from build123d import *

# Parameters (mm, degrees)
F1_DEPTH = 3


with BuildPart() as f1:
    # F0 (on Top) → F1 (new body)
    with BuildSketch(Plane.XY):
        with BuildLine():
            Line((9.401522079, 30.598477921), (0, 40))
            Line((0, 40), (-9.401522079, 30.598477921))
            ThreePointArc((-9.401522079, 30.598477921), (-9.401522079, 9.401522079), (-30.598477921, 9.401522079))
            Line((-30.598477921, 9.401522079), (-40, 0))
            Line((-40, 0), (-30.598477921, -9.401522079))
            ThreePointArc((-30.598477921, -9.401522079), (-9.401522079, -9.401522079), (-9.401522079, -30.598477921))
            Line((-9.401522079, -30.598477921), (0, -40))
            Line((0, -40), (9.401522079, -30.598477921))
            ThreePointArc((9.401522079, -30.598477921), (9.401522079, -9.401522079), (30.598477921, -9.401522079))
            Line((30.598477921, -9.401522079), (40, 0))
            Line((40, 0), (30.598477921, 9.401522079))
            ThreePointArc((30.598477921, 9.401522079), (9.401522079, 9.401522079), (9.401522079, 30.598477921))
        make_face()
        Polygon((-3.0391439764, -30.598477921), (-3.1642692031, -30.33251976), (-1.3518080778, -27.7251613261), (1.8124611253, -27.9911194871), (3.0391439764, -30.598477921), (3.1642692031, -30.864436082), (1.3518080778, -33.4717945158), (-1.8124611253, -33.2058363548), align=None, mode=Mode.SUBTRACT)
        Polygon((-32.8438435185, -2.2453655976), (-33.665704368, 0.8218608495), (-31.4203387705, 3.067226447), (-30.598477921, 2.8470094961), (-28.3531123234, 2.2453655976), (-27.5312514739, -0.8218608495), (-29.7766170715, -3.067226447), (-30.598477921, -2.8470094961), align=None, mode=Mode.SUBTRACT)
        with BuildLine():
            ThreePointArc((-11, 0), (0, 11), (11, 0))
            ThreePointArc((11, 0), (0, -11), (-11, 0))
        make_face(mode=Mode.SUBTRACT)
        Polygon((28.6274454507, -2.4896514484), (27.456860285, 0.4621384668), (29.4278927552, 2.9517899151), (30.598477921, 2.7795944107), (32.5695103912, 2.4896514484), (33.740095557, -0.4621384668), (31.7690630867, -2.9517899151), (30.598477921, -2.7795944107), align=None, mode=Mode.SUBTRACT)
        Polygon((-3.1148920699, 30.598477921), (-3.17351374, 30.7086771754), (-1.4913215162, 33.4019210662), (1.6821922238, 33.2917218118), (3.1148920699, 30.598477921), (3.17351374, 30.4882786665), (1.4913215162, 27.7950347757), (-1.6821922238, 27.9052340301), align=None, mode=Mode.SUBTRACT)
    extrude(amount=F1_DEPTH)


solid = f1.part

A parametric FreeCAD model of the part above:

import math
import FreeCAD as App
import Part
import Sketcher

doc = App.newDocument("Part")
params = doc.addObject("Spreadsheet::Sheet", "Params")
for row, (alias, value) in enumerate([
    ("sketch1_diameter", "22 mm"),
    ("pad1_length", "3 mm"),
], start=1):
    params.set(f"A{row}", alias)
    params.set(f"B{row}", "=" + value)
    params.setAlias(f"B{row}", alias)

body = doc.addObject("PartDesign::Body", "Body")

sketch1 = body.newObject("Sketcher::SketchObject", "Sketch")
sketch1.AttachmentSupport = (doc.getObject("XY_Plane"), [""])
sketch1.MapMode = "FlatFace"
sketch1.addGeometry([
    Part.LineSegment(App.Vector(9.401522, 30.598478, 0), App.Vector(0, 40, 0)),
    Part.LineSegment(App.Vector(0, 40, 0), App.Vector(-9.401522, 30.598478, 0)),
    Part.ArcOfCircle(Part.Circle(App.Vector(-20, 20, 0), App.Vector(0, 0, 1), 14.988511), math.radians(-135), math.radians(45)),
    Part.LineSegment(App.Vector(-30.598478, 9.401522, 0), App.Vector(-40, 0, 0)),
    Part.LineSegment(App.Vector(-40, 0, 0), App.Vector(-30.598478, -9.401522, 0)),
    Part.ArcOfCircle(Part.Circle(App.Vector(-20, -20, 0), App.Vector(0, 0, 1), 14.988511), math.radians(-45), math.radians(135)),
    Part.LineSegment(App.Vector(-9.401522, -30.598478, 0), App.Vector(0, -40, 0)),
    Part.LineSegment(App.Vector(0, -40, 0), App.Vector(9.401522, -30.598478, 0)),
    Part.ArcOfCircle(Part.Circle(App.Vector(20, -20, 0), App.Vector(0, 0, 1), 14.988511), math.radians(45), math.radians(225)),
    Part.LineSegment(App.Vector(30.598478, -9.401522, 0), App.Vector(40, 0, 0)),
    Part.LineSegment(App.Vector(40, 0, 0), App.Vector(30.598478, 9.401522, 0)),
    Part.ArcOfCircle(Part.Circle(App.Vector(20, 20, 0), App.Vector(0, 0, 1), 14.988511), math.radians(135), math.radians(315)),
    Part.LineSegment(App.Vector(-1.812461, -33.205836, 0), App.Vector(-3.039144, -30.598478, 0)),
    Part.LineSegment(App.Vector(-3.039144, -30.598478, 0), App.Vector(-3.164269, -30.33252, 0)),
    Part.LineSegment(App.Vector(-3.164269, -30.33252, 0), App.Vector(-1.351808, -27.725161, 0)),
    Part.LineSegment(App.Vector(-1.351808, -27.725161, 0), App.Vector(1.812461, -27.991119, 0)),
    Part.LineSegment(App.Vector(1.812461, -27.991119, 0), App.Vector(3.039144, -30.598478, 0)),
    Part.LineSegment(App.Vector(3.039144, -30.598478, 0), App.Vector(3.164269, -30.864436, 0)),
    Part.LineSegment(App.Vector(3.164269, -30.864436, 0), App.Vector(1.351808, -33.471795, 0)),
    Part.LineSegment(App.Vector(1.351808, -33.471795, 0), App.Vector(-1.812461, -33.205836, 0)),
    Part.LineSegment(App.Vector(-30.598478, -2.847009, 0), App.Vector(-32.843844, -2.245366, 0)),
    Part.LineSegment(App.Vector(-32.843844, -2.245366, 0), App.Vector(-33.665704, 0.821861, 0)),
    Part.LineSegment(App.Vector(-33.665704, 0.821861, 0), App.Vector(-31.420339, 3.067226, 0)),
    Part.LineSegment(App.Vector(-31.420339, 3.067226, 0), App.Vector(-30.598478, 2.847009, 0)),
    Part.LineSegment(App.Vector(-30.598478, 2.847009, 0), App.Vector(-28.353112, 2.245366, 0)),
    Part.LineSegment(App.Vector(-28.353112, 2.245366, 0), App.Vector(-27.531251, -0.821861, 0)),
    Part.LineSegment(App.Vector(-27.531251, -0.821861, 0), App.Vector(-29.776617, -3.067226, 0)),
    Part.LineSegment(App.Vector(-29.776617, -3.067226, 0), App.Vector(-30.598478, -2.847009, 0)),
    Part.Circle(App.Vector(0, 0, 0), App.Vector(0, 0, 1), 11),
    Part.LineSegment(App.Vector(-1.682192, 27.905234, 0), App.Vector(-3.114892, 30.598478, 0)),
    Part.LineSegment(App.Vector(-3.114892, 30.598478, 0), App.Vector(-3.173514, 30.708677, 0)),
    Part.LineSegment(App.Vector(-3.173514, 30.708677, 0), App.Vector(-1.491322, 33.401921, 0)),
    Part.LineSegment(App.Vector(-1.491322, 33.401921, 0), App.Vector(1.682192, 33.291722, 0)),
    Part.LineSegment(App.Vector(1.682192, 33.291722, 0), App.Vector(3.114892, 30.598478, 0)),
    Part.LineSegment(App.Vector(3.114892, 30.598478, 0), App.Vector(3.173514, 30.488279, 0)),
    Part.LineSegment(App.Vector(3.173514, 30.488279, 0), App.Vector(1.491322, 27.795035, 0)),
    Part.LineSegment(App.Vector(1.491322, 27.795035, 0), App.Vector(-1.682192, 27.905234, 0)),
    Part.LineSegment(App.Vector(30.598478, -2.779594, 0), App.Vector(28.627445, -2.489651, 0)),
    Part.LineSegment(App.Vector(28.627445, -2.489651, 0), App.Vector(27.45686, 0.462138, 0)),
    Part.LineSegment(App.Vector(27.45686, 0.462138, 0), App.Vector(29.427893, 2.95179, 0)),
    Part.LineSegment(App.Vector(29.427893, 2.95179, 0), App.Vector(30.598478, 2.779594, 0)),
    Part.LineSegment(App.Vector(30.598478, 2.779594, 0), App.Vector(32.56951, 2.489651, 0)),
    Part.LineSegment(App.Vector(32.56951, 2.489651, 0), App.Vector(33.740096, -0.462138, 0)),
    Part.LineSegment(App.Vector(33.740096, -0.462138, 0), App.Vector(31.769063, -2.95179, 0)),
    Part.LineSegment(App.Vector(31.769063, -2.95179, 0), App.Vector(30.598478, -2.779594, 0)),
], False)
sketch1.addConstraint([
    Sketcher.Constraint("Coincident", 0, 2, 1, 1),
    Sketcher.Constraint("Coincident", 1, 2, 2, 2),
    Sketcher.Constraint("Coincident", 2, 1, 3, 1),
    Sketcher.Constraint("Coincident", 3, 2, 4, 1),
    Sketcher.Constraint("Coincident", 4, 2, 5, 2),
    Sketcher.Constraint("Coincident", 5, 1, 6, 1),
    Sketcher.Constraint("Coincident", 6, 2, 7, 1),
    Sketcher.Constraint("Coincident", 7, 2, 8, 2),
    Sketcher.Constraint("Coincident", 8, 1, 9, 1),
    Sketcher.Constraint("Coincident", 9, 2, 10, 1),
    Sketcher.Constraint("Coincident", 10, 2, 11, 2),
    Sketcher.Constraint("Coincident", 11, 1, 0, 1),
    Sketcher.Constraint("Coincident", 12, 2, 13, 1),
    Sketcher.Constraint("Coincident", 13, 2, 14, 1),
    Sketcher.Constraint("Coincident", 14, 2, 15, 1),
    Sketcher.Constraint("Coincident", 15, 2, 16, 1),
    Sketcher.Constraint("Coincident", 16, 2, 17, 1),
    Sketcher.Constraint("Coincident", 17, 2, 18, 1),
    Sketcher.Constraint("Coincident", 18, 2, 19, 1),
    Sketcher.Constraint("Coincident", 19, 2, 12, 1),
    Sketcher.Constraint("Coincident", 20, 2, 21, 1),
    Sketcher.Constraint("Coincident", 21, 2, 22, 1),
    Sketcher.Constraint("Coincident", 22, 2, 23, 1),
    Sketcher.Constraint("Coincident", 23, 2, 24, 1),
    Sketcher.Constraint("Coincident", 24, 2, 25, 1),
    Sketcher.Constraint("Coincident", 25, 2, 26, 1),
    Sketcher.Constraint("Coincident", 26, 2, 27, 1),
    Sketcher.Constraint("Coincident", 27, 2, 20, 1),
    Sketcher.Constraint("Coincident", 29, 2, 30, 1),
    Sketcher.Constraint("Coincident", 30, 2, 31, 1),
    Sketcher.Constraint("Coincident", 31, 2, 32, 1),
    Sketcher.Constraint("Coincident", 32, 2, 33, 1),
    Sketcher.Constraint("Coincident", 33, 2, 34, 1),
    Sketcher.Constraint("Coincident", 34, 2, 35, 1),
    Sketcher.Constraint("Coincident", 35, 2, 36, 1),
    Sketcher.Constraint("Coincident", 36, 2, 29, 1),
    Sketcher.Constraint("Coincident", 37, 2, 38, 1),
    Sketcher.Constraint("Coincident", 38, 2, 39, 1),
    Sketcher.Constraint("Coincident", 39, 2, 40, 1),
    Sketcher.Constraint("Coincident", 40, 2, 41, 1),
    Sketcher.Constraint("Coincident", 41, 2, 42, 1),
    Sketcher.Constraint("Coincident", 42, 2, 43, 1),
    Sketcher.Constraint("Coincident", 43, 2, 44, 1),
    Sketcher.Constraint("Coincident", 44, 2, 37, 1),
    Sketcher.Constraint("Coincident", 28, 3, -1, 1),
    Sketcher.Constraint("PointOnObject", 0, 2, -2),
    Sketcher.Constraint("PointOnObject", 3, 2, -1),
    Sketcher.Constraint("PointOnObject", 6, 2, -2),
    Sketcher.Constraint("PointOnObject", 9, 2, -1),
    Sketcher.Constraint("Diameter", 28, 22.0),
    Sketcher.Constraint("DistanceX", 2, 3, -1, 1, 20.0),
    Sketcher.Constraint("DistanceY", -1, 1, 2, 3, 20.0),
    Sketcher.Constraint("DistanceX", 5, 3, -1, 1, 20.0),
    Sketcher.Constraint("DistanceY", 5, 3, -1, 1, 20.0),
    Sketcher.Constraint("DistanceX", -1, 1, 8, 3, 20.0),
    Sketcher.Constraint("DistanceY", 8, 3, -1, 1, 20.0),
    Sketcher.Constraint("DistanceX", -1, 1, 11, 3, 20.0),
    Sketcher.Constraint("DistanceY", -1, 1, 11, 3, 20.0),
    Sketcher.Constraint("DistanceY", -1, 1, 0, 2, 40.0),
    Sketcher.Constraint("DistanceX", 3, 2, -1, 1, 40.0),
    Sketcher.Constraint("DistanceY", 6, 2, -1, 1, 40.0),
    Sketcher.Constraint("DistanceX", -1, 1, 9, 2, 40.0),
    Sketcher.Constraint("Radius", 2, 14.988511),
    Sketcher.Constraint("Radius", 5, 14.988511),
    Sketcher.Constraint("Radius", 8, 14.988511),
    Sketcher.Constraint("Radius", 11, 14.988511),
    Sketcher.Constraint("DistanceY", 13, 2, 15, 2, 2.3414),
    Sketcher.Constraint("DistanceY", 19, 2, 17, 2, 2.3414),
    Sketcher.Constraint("DistanceY", 29, 2, 30, 2, 0.110199),
    Sketcher.Constraint("DistanceY", 1, 2, 30, 2, 0.110199),
    Sketcher.Constraint("DistanceY", 11, 1, 30, 2, 0.110199),
    Sketcher.Constraint("DistanceX", 1, 2, 31, 2, 7.910201),
    Sketcher.Constraint("DistanceY", 32, 2, 31, 2, 0.110199),
    Sketcher.Constraint("DistanceX", 32, 2, 33, 2, 1.4327),
    Sketcher.Constraint("DistanceY", 33, 2, 30, 2, 0.110199),
    Sketcher.Constraint("DistanceY", 34, 2, 33, 2, 0.110199),
    Sketcher.Constraint("DistanceX", 29, 2, 36, 2, 1.4327),
    Sketcher.Constraint("DistanceY", 35, 2, 36, 2, 0.110199),
    Sketcher.Constraint("Distance", 13, 0.293922),
    Sketcher.Constraint("Distance", 17, 0.293922),
    Sketcher.Constraint("Distance", 30, 0.124821),
    Sketcher.Constraint("Distance", 34, 0.124821),
    Sketcher.Constraint("DistanceX", 13, 2, -1, 1, 3.164269),
    Sketcher.Constraint("DistanceY", 13, 2, -1, 1, 30.33252),
    Sketcher.Constraint("DistanceX", 14, 2, -1, 1, 1.351808),
    Sketcher.Constraint("DistanceY", 14, 2, -1, 1, 27.725161),
    Sketcher.Constraint("DistanceX", -1, 1, 15, 2, 1.812461),
    Sketcher.Constraint("DistanceX", -1, 1, 17, 2, 3.164269),
    Sketcher.Constraint("DistanceX", -1, 1, 18, 2, 1.351808),
    Sketcher.Constraint("DistanceX", 19, 2, -1, 1, 1.812461),
    Sketcher.Constraint("DistanceY", -1, 1, 21, 2, 0.821861),
    Sketcher.Constraint("DistanceX", 22, 2, -1, 1, 31.420339),
    Sketcher.Constraint("DistanceY", -1, 1, 23, 2, 2.847009),
    Sketcher.Constraint("DistanceX", 25, 2, -1, 1, 27.531251),
    Sketcher.Constraint("DistanceY", 25, 2, -1, 1, 0.821861),
    Sketcher.Constraint("DistanceY", 27, 2, -1, 1, 2.847009),
    Sketcher.Constraint("DistanceX", 31, 2, -1, 1, 1.491322),
    Sketcher.Constraint("DistanceY", -1, 1, 31, 2, 33.401921),
    Sketcher.Constraint("DistanceX", -1, 1, 35, 2, 1.491322),
    Sketcher.Constraint("DistanceY", 37, 2, -1, 1, 2.489651),
    Sketcher.Constraint("DistanceX", -1, 1, 38, 2, 27.45686),
    Sketcher.Constraint("DistanceY", -1, 1, 38, 2, 0.462138),
    Sketcher.Constraint("DistanceY", -1, 1, 39, 2, 2.95179),
    Sketcher.Constraint("DistanceX", -1, 1, 41, 2, 32.56951),
    Sketcher.Constraint("DistanceY", -1, 1, 41, 2, 2.489651),
    Sketcher.Constraint("DistanceY", 42, 2, -1, 1, 0.462138),
    Sketcher.Constraint("DistanceY", 43, 2, -1, 1, 2.95179),
    Sketcher.Constraint("DistanceX", 5, 1, 12, 2, 6.362378),
    Sketcher.Constraint("DistanceY", 12, 2, 13, 2, 0.265958),
    Sketcher.Constraint("DistanceX", 13, 2, 7, 2, 12.565791),
    Sketcher.Constraint("DistanceY", 16, 2, 15, 2, 2.607358),
    Sketcher.Constraint("DistanceX", 16, 2, 7, 2, 6.362378),
    Sketcher.Constraint("DistanceY", 18, 2, 17, 2, 2.607358),
    Sketcher.Constraint("DistanceX", 21, 2, 20, 2, 0.821861),
    Sketcher.Constraint("DistanceY", 21, 2, 2, 1, 8.579661),
    Sketcher.Constraint("DistanceX", 22, 2, 4, 2, 0.821861),
    Sketcher.Constraint("DistanceY", 4, 2, 22, 2, 12.468749),
    Sketcher.Constraint("DistanceX", 22, 2, 23, 2, 0.821861),
    Sketcher.Constraint("DistanceY", 24, 2, 22, 2, 0.821861),
    Sketcher.Constraint("DistanceX", 20, 2, 24, 2, 4.490731),
    Sketcher.Constraint("DistanceY", 20, 2, 24, 2, 4.490731),
    Sketcher.Constraint("DistanceX", 24, 2, 25, 2, 0.821861),
    Sketcher.Constraint("DistanceY", 26, 2, 20, 2, 0.821861),
    Sketcher.Constraint("DistanceX", 23, 2, 26, 2, 0.821861),
    Sketcher.Constraint("DistanceX", 27, 2, 26, 2, 0.821861),
    Sketcher.Constraint("DistanceX", 1, 2, 29, 2, 6.28663),
    Sketcher.Constraint("DistanceX", 32, 2, 11, 1, 7.71933),
    Sketcher.Constraint("DistanceY", 8, 1, 37, 2, 6.911871),
    Sketcher.Constraint("DistanceY", 41, 2, 10, 2, 6.911871),
    Sketcher.Constraint("DistanceX", 37, 2, 42, 2, 5.11265),
    Sketcher.Constraint("DistanceY", 44, 2, 40, 2, 5.559189),
    Sketcher.Constraint("Distance", 29, 3.050605),
    Sketcher.Constraint("Distance", 37, 1.992244),
    Sketcher.Constraint("Distance", 38, 3.175426),
    Sketcher.Constraint("Distance", 39, 3.175426),
    Sketcher.Constraint("Distance", 40, 1.183183),
    Sketcher.Constraint("Distance", 43, 3.175426),
    Sketcher.Constraint("DistanceX", -1, 1, 40, 2, 30.598478),
])
sketch1.setExpression("Constraints[49]", "Params.sketch1_diameter")
pad1 = body.newObject("PartDesign::Pad", "Pad")
pad1.Profile = sketch1
pad1.setExpression("Length", "Params.pad1_length")

doc.recompute()
